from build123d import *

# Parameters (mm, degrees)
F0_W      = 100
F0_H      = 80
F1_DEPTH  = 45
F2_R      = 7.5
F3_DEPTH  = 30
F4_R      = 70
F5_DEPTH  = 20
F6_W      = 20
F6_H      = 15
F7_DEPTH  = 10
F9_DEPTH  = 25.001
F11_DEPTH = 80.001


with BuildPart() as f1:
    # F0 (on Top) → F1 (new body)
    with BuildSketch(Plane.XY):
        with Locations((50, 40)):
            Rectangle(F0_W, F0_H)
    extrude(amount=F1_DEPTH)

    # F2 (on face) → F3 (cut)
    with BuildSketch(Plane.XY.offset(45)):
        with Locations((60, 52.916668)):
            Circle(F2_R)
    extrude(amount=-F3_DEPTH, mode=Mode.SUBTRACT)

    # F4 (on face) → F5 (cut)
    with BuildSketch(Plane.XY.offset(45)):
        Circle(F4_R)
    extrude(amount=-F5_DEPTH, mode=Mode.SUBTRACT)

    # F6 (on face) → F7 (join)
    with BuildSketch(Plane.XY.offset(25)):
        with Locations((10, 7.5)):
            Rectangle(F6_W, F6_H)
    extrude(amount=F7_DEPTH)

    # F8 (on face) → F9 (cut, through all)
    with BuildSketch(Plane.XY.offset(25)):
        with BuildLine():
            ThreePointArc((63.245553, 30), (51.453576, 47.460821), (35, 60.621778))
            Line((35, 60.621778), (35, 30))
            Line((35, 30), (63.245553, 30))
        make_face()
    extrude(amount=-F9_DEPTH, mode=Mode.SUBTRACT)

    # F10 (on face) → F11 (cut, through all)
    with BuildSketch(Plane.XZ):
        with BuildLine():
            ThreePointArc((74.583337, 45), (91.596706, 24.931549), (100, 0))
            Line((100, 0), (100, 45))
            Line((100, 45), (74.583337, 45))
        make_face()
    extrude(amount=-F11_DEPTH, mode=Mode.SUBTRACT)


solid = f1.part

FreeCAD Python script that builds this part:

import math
import FreeCAD as App
import Part
import Sketcher
Q = App.Units.Quantity

doc = App.newDocument("Part")
params = doc.addObject("Spreadsheet::Sheet", "Params")
for row, (alias, value) in enumerate([
    ("sketch1_width", "100 mm"),
    ("sketch1_height", "80 mm"),
    ("pad1_length", "45 mm"),
    ("sketch2_diameter", "15 mm"),
    ("pocket1_length", "30 mm"),
    ("sketch3_diameter", "140 mm"),
    ("pocket2_length", "20 mm"),
    ("sketch4_width", "20 mm"),
    ("sketch4_height", "15 mm"),
    ("pad2_length", "10 mm"),
    ("sketch6_height", "45 mm"),
], start=1):
    params.set(f"A{row}", alias)
    params.set(f"B{row}", "=" + value)
    params.setAlias(f"B{row}", alias)

body = doc.addObject("PartDesign::Body", "Body")

sketch1 = body.newObject("Sketcher::SketchObject", "Sketch")
sketch1.AttachmentSupport = (doc.getObject("XY_Plane"), [""])
sketch1.MapMode = "FlatFace"
sketch1.addGeometry(Part.LineSegment(App.Vector(0, 80, 0), App.Vector(0, 0, 0)), False)
sketch1.addGeometry(Part.LineSegment(App.Vector(0, 0, 0), App.Vector(100, 0, 0)), False)
sketch1.addGeometry(Part.LineSegment(App.Vector(100, 0, 0), App.Vector(100, 80, 0)), False)
sketch1.addGeometry(Part.LineSegment(App.Vector(100, 80, 0), App.Vector(0, 80, 0)), False)
sketch1.addConstraint(Sketcher.Constraint("Coincident", 0, 2, 1, 1))
sketch1.addConstraint(Sketcher.Constraint("Coincident", 1, 2, 2, 1))
sketch1.addConstraint(Sketcher.Constraint("Coincident", 2, 2, 3, 1))
sketch1.addConstraint(Sketcher.Constraint("Coincident", 3, 2, 0, 1))
sketch1.addConstraint(Sketcher.Constraint("Vertical", 0))
sketch1.addConstraint(Sketcher.Constraint("Horizontal", 1))
sketch1.addConstraint(Sketcher.Constraint("Vertical", 2))
sketch1.addConstraint(Sketcher.Constraint("Horizontal", 3))
sketch1.addConstraint(Sketcher.Constraint("Coincident", 0, 2, -1, 1))
sketch1.addConstraint(Sketcher.Constraint("DistanceX", 1, 1, 1, 2, Q("100 mm")))
sketch1.addConstraint(Sketcher.Constraint("DistanceY", 0, 2, 0, 1, Q("80 mm")))
sketch1.setExpression("Constraints[9]", "Params.sketch1_width")
sketch1.setExpression("Constraints[10]", "Params.sketch1_height")
pad1 = body.newObject("PartDesign::Pad", "Pad")
pad1.Profile = sketch1
pad1.setExpression("Length", "Params.pad1_length")

sketch2 = body.newObject("Sketcher::SketchObject", "Sketch001")
sketch2.AttachmentSupport = (doc.getObject("XY_Plane"), [""])
sketch2.MapMode = "FlatFace"
sketch2.AttachmentOffset = App.Placement(App.Vector(0, 0, 45), App.Rotation())
sketch2.addGeometry(Part.Circle(App.Vector(60, 53, 0), App.Vector(0, 0, 1), 8), False)
sketch2.addConstraint(Sketcher.Constraint("Diameter", 0, Q("15 mm")))
sketch2.addConstraint(Sketcher.Constraint("DistanceX", -1, 1, 0, 3, Q("60 mm")))
sketch2.addConstraint(Sketcher.Constraint("DistanceY", -1, 1, 0, 3, Q("52.916668 mm")))
sketch2.setExpression("Constraints[0]", "Params.sketch2_diameter")
pocket1 = body.newObject("PartDesign::Pocket", "Pocket")
pocket1.Profile = sketch2
pocket1.setExpression("Length", "Params.pocket1_length")

sketch3 = body.newObject("Sketcher::SketchObject", "Sketch002")
sketch3.AttachmentSupport = (doc.getObject("XY_Plane"), [""])
sketch3.MapMode = "FlatFace"
sketch3.AttachmentOffset = App.Placement(App.Vector(0, 0, 45), App.Rotation())
sketch3.addGeometry(Part.Circle(App.Vector(0, 0, 0), App.Vector(0, 0, 1), 70), False)
sketch3.addConstraint(Sketcher.Constraint("Coincident", 0, 3, -1, 1))
sketch3.addConstraint(Sketcher.Constraint("Diameter", 0, Q("140 mm")))
sketch3.setExpression("Constraints[1]", "Params.sketch3_diameter")
pocket2 = body.newObject("PartDesign::Pocket", "Pocket001")
pocket2.Profile = sketch3
pocket2.setExpression("Length", "Params.pocket2_length")

sketch4 = body.newObject("Sketcher::SketchObject", "Sketch003")
sketch4.AttachmentSupport = (doc.getObject("XY_Plane"), [""])
sketch4.MapMode = "FlatFace"
sketch4.AttachmentOffset = App.Placement(App.Vector(0, 0, 25), App.Rotation())
sketch4.addGeometry(Part.LineSegment(App.Vector(0, 15, 0), App.Vector(0, 0, 0)), False)
sketch4.addGeometry(Part.LineSegment(App.Vector(0, 0, 0), App.Vector(20, 0, 0)), False)
sketch4.addGeometry(Part.LineSegment(App.Vector(20, 0, 0), App.Vector(20, 15, 0)), False)
sketch4.addGeometry(Part.LineSegment(App.Vector(20, 15, 0), App.Vector(0, 15, 0)), False)
sketch4.addConstraint(Sketcher.Constraint("Coincident", 0, 2, 1, 1))
sketch4.addConstraint(Sketcher.Constraint("Coincident", 1, 2, 2, 1))
sketch4.addConstraint(Sketcher.Constraint("Coincident", 2, 2, 3, 1))
sketch4.addConstraint(Sketcher.Constraint("Coincident", 3, 2, 0, 1))
sketch4.addConstraint(Sketcher.Constraint("Vertical", 0))
sketch4.addConstraint(Sketcher.Constraint("Horizontal", 1))
sketch4.addConstraint(Sketcher.Constraint("Vertical", 2))
sketch4.addConstraint(Sketcher.Constraint("Horizontal", 3))
sketch4.addConstraint(Sketcher.Constraint("Coincident", 0, 2, -1, 1))
sketch4.addConstraint(Sketcher.Constraint("DistanceX", 1, 1, 1, 2, Q("20 mm")))
sketch4.addConstraint(Sketcher.Constraint("DistanceY", 0, 2, 0, 1, Q("15 mm")))
sketch4.setExpression("Constraints[9]", "Params.sketch4_width")
sketch4.setExpression("Constraints[10]", "Params.sketch4_height")
pad2 = body.newObject("PartDesign::Pad", "Pad001")
pad2.Profile = sketch4
pad2.setExpression("Length", "Params.pad2_length")

sketch5 = body.newObject("Sketcher::SketchObject", "Sketch004")
sketch5.AttachmentSupport = (doc.getObject("XY_Plane"), [""])
sketch5.MapMode = "FlatFace"
sketch5.AttachmentOffset = App.Placement(App.Vector(0, 0, 25), App.Rotation())
sketch5.addGeometry(Part.ArcOfCircle(Part.Circle(App.Vector(0, 0, 0), App.Vector(0, 0, 1), 70), math.radians(25), math.radians(60)), False)
sketch5.addGeometry(Part.LineSegment(App.Vector(35, 61, 0), App.Vector(35, 30, 0)), False)
sketch5.addGeometry(Part.LineSegment(App.Vector(35, 30, 0), App.Vector(63, 30, 0)), False)
sketch5.addConstraint(Sketcher.Constraint("Coincident", 0, 2, 1, 1))
sketch5.addConstraint(Sketcher.Constraint("Coincident", 1, 2, 2, 1))
sketch5.addConstraint(Sketcher.Constraint("Coincident", 2, 2, 0, 1))
sketch5.addConstraint(Sketcher.Constraint("Vertical", 1))
sketch5.addConstraint(Sketcher.Constraint("Horizontal", 2))
sketch5.addConstraint(Sketcher.Constraint("Coincident", 0, 3, -1, 1))
sketch5.addConstraint(Sketcher.Constraint("DistanceX", -1, 1, 0, 2, Q("35 mm")))
sketch5.addConstraint(Sketcher.Constraint("DistanceY", -1, 1, 1, 2, Q("30 mm")))
sketch5.addConstraint(Sketcher.Constraint("Radius", 0, Q("69.999993 mm")))
pocket3 = body.newObject("PartDesign::Pocket", "Pocket002")
pocket3.Profile = sketch5
pocket3.Type = "ThroughAll"

sketch6 = body.newObject("Sketcher::SketchObject", "Sketch005")
sketch6.AttachmentSupport = (doc.getObject("XZ_Plane"), [""])
sketch6.MapMode = "FlatFace"
sketch6.addGeometry(Part.ArcOfCircle(Part.Circle(App.Vector(31, -9, 0), App.Vector(0, 0, 1), 70), math.radians(8), math.radians(51)), False)
sketch6.addGeometry(Part.LineSegment(App.Vector(100, 0, 0), App.Vector(100, 45, 0)), False)
sketch6.addGeometry(Part.LineSegment(App.Vector(100, 45, 0), App.Vector(75, 45, 0)), False)
sketch6.addConstraint(Sketcher.Constraint("Coincident", 0, 1, 1, 1))
sketch6.addConstraint(Sketcher.Constraint("Coincident", 1, 2, 2, 1))
sketch6.addConstraint(Sketcher.Constraint("Coincident", 2, 2, 0, 2))
sketch6.addConstraint(Sketcher.Constraint("Vertical", 1))
sketch6.addConstraint(Sketcher.Constraint("Horizontal", 2))
sketch6.addConstraint(Sketcher.Constraint("PointOnObject", 0, 1, -1))
sketch6.addConstraint(Sketcher.Constraint("DistanceY", 1, 1, 1, 2, Q("45 mm")))
sketch6.addConstraint(Sketcher.Constraint("DistanceX", -1, 1, 0, 1, Q("100 mm")))
sketch6.addConstraint(Sketcher.Constraint("Radius", 0, Q("70.000006 mm")))
sketch6.addConstraint(Sketcher.Constraint("DistanceX", 2, 2, 2, 1, Q("25.416663 mm")))
sketch6.setExpression("Constraints[6]", "Params.sketch6_height")
pocket4 = body.newObject("PartDesign::Pocket", "Pocket003")
pocket4.Profile = sketch6
pocket4.Type = "ThroughAll"

doc.recompute()
